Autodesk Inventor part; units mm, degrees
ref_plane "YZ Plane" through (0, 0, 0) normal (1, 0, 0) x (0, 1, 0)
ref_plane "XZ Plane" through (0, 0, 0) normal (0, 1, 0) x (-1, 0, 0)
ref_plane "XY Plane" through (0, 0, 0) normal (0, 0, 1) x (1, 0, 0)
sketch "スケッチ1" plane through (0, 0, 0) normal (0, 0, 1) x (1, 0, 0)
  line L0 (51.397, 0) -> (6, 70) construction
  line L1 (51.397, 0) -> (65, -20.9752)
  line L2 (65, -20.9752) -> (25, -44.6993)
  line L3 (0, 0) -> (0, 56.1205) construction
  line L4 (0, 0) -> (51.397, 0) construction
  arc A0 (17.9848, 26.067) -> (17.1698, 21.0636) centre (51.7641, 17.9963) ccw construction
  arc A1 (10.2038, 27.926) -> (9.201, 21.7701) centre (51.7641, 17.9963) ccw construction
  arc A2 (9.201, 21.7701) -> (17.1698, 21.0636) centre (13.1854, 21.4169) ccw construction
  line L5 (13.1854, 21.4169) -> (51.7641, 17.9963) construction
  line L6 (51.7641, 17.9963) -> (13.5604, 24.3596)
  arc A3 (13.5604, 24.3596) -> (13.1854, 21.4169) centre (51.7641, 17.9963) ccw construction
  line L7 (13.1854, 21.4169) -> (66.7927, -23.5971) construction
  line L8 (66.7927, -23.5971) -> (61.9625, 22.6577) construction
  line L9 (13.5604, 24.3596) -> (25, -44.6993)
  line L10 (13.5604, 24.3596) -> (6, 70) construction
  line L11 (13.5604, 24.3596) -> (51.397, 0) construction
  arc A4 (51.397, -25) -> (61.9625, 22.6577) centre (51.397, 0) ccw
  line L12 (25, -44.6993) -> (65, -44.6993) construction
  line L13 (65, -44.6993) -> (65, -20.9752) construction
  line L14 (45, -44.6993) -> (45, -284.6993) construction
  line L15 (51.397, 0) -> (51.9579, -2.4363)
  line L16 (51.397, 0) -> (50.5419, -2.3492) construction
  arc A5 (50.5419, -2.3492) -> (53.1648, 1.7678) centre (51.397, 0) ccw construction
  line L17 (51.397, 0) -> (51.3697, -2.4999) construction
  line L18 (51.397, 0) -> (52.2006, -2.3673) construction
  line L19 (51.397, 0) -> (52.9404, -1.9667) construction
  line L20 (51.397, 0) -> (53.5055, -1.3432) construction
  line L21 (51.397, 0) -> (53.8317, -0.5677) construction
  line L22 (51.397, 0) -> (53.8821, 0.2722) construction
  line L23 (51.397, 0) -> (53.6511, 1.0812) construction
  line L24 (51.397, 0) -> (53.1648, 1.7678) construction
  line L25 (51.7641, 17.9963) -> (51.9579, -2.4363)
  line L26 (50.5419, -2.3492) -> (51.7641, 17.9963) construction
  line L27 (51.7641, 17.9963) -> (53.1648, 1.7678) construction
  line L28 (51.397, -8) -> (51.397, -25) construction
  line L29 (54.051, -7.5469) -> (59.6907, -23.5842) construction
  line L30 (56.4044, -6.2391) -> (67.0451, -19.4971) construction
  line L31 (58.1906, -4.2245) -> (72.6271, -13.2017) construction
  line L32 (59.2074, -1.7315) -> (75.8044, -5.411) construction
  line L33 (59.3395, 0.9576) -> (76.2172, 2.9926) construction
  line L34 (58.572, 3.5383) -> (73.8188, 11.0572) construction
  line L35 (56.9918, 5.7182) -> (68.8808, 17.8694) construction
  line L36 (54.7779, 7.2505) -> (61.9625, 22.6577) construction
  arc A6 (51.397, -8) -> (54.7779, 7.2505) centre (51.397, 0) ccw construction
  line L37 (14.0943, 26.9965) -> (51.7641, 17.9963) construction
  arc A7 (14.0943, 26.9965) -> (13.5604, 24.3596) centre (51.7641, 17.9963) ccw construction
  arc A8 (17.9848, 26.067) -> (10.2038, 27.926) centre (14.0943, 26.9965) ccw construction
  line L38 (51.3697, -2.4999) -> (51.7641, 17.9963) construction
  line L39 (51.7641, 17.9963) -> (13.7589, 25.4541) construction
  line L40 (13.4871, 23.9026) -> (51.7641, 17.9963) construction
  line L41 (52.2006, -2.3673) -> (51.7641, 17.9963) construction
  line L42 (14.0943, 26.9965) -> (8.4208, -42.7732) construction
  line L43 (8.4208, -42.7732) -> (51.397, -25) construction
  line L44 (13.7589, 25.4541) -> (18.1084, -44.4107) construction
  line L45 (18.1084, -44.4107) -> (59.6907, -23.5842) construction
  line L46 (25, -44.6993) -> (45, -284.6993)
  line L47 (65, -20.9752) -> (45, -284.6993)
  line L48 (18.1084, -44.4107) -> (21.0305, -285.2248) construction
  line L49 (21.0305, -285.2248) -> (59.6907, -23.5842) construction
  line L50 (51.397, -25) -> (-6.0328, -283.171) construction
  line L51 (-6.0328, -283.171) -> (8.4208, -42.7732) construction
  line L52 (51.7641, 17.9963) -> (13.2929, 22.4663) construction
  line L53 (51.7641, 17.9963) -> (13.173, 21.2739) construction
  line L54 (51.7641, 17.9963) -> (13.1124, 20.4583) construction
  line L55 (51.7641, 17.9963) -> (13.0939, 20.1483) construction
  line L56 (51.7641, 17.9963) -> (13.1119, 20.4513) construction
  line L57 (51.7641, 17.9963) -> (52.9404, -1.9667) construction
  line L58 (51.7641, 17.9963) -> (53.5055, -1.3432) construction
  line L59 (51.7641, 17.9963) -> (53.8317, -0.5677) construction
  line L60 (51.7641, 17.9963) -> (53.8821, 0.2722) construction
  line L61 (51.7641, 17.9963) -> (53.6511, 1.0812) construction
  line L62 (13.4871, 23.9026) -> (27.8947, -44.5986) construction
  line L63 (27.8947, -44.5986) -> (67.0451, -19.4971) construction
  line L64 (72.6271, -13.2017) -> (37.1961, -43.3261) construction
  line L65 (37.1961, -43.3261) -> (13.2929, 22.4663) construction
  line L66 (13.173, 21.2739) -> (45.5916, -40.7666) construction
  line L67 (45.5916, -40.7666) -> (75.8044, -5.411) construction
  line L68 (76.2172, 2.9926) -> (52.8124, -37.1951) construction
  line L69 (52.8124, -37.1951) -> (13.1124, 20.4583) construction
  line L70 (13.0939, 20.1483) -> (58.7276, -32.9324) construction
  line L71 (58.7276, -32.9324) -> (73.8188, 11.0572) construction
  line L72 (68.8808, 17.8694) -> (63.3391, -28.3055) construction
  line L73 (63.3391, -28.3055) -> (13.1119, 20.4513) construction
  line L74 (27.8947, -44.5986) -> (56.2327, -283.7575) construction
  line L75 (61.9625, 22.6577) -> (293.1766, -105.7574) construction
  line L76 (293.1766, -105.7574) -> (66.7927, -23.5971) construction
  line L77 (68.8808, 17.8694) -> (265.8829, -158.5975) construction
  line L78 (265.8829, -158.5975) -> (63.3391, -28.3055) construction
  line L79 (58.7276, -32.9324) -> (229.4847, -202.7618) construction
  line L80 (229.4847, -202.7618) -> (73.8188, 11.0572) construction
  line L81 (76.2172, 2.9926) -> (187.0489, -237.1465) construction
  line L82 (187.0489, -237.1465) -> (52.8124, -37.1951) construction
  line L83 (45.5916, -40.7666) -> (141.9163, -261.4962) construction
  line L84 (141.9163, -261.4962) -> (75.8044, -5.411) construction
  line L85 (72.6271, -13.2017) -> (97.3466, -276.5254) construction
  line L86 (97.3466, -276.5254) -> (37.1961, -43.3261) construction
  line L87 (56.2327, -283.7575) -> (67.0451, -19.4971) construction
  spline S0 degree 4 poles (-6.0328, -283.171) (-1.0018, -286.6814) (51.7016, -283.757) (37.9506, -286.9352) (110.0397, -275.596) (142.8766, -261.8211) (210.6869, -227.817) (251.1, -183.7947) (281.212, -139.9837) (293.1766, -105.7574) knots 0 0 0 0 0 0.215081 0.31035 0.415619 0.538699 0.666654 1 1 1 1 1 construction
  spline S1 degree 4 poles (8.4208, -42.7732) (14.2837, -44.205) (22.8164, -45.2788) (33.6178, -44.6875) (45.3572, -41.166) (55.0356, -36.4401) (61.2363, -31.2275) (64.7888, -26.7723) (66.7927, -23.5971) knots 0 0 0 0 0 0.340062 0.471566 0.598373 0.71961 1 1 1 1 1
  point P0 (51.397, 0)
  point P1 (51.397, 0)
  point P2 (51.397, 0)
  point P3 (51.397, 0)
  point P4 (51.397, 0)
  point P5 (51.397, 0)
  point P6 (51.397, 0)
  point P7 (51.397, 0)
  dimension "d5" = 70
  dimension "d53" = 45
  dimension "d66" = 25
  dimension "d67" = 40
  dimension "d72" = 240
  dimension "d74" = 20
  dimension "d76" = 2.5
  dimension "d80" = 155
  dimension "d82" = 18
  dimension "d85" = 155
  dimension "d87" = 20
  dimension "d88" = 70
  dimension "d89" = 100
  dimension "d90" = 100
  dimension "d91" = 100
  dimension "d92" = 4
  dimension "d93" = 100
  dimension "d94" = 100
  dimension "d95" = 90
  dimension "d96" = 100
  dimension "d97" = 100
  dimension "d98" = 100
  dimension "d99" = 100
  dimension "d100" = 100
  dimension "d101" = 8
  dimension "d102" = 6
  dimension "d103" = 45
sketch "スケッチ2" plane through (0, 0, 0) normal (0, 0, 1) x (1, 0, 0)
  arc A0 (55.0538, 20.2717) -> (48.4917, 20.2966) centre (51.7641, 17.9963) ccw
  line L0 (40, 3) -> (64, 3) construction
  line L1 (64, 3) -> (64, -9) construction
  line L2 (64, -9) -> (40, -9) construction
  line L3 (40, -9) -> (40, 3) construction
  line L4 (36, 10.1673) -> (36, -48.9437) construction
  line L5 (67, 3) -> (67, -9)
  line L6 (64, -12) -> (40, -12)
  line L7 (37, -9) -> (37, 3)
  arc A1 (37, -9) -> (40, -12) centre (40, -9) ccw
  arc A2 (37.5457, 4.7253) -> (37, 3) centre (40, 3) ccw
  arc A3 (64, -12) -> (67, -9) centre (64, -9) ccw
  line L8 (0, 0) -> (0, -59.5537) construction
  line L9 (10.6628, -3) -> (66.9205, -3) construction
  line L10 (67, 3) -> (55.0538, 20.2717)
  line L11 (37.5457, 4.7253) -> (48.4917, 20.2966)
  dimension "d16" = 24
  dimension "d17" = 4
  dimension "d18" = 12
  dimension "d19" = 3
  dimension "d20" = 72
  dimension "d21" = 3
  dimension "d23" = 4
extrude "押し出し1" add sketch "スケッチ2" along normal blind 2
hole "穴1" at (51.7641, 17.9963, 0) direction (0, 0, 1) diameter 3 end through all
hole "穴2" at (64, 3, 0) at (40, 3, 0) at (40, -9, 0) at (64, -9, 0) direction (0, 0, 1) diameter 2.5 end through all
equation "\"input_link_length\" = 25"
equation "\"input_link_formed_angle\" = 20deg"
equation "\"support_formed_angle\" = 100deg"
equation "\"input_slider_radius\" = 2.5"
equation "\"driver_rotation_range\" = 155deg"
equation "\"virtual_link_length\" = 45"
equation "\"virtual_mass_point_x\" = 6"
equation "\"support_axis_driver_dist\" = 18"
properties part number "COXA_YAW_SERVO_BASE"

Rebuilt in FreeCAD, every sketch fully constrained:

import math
import FreeCAD as App
import Part
import Sketcher

V = App.Vector
Q = App.Units.Quantity

doc = App.newDocument("Part")
params = doc.addObject("Spreadsheet::Sheet", "Params")
for row, (alias, value) in enumerate([
    ("sketch1_radius", "4 mm"),
    ("sketch1_radius2", "3 mm"),
    ("sketch1_width", "24 mm"),
    ("sketch1_height", "12 mm"),
    ("pad1_length", "2 mm"),
    ("sketch2_diameter", "3 mm"),
    ("hole_diameter", "3 mm"),
    ("sketch3_diameter", "2.5 mm"),
    ("hole2_diameter", "2.5 mm"),
], start=1):
    params.set(f"A{row}", alias)
    params.set(f"B{row}", "=" + value)
    params.setAlias(f"B{row}", alias)

body = doc.addObject("PartDesign::Body", "Body")

# Sketch on XY plane
sketch1 = body.newObject("Sketcher::SketchObject", "Sketch")
sketch1.AttachmentSupport = (doc.getObject("XY_Plane"), [""])
sketch1.MapMode = "FlatFace"
sketch1.addGeometry([
    Part.LineSegment(V(67, 3, 0), V(55.0538, 20.2717, 0)),  # 0
    Part.ArcOfCircle(Part.Circle(V(51.7641, 17.9963, 0), V(0, 0, 1), 3.999946), math.radians(34.670603), math.radians(144.895092)),  # 1
    Part.LineSegment(V(48.4917, 20.2966, 0), V(37.5457, 4.7253, 0)),  # 2
    Part.ArcOfCircle(Part.Circle(V(40, 3, 0), V(0, 0, 1), 3.000041), math.radians(144.893921), math.radians(180)),  # 3
    Part.LineSegment(V(37, 3, 0), V(37, -9, 0)),  # 4
    Part.ArcOfCircle(Part.Circle(V(40, -9, 0), V(0, 0, 1), 3), math.radians(180), math.radians(270)),  # 5
    Part.LineSegment(V(40, -12, 0), V(64, -12, 0)),  # 6
    Part.ArcOfCircle(Part.Circle(V(64, -9, 0), V(0, 0, 1), 3), math.radians(-90), math.radians(0)),  # 7
    Part.LineSegment(V(67, -9, 0), V(67, 3, 0)),  # 8
], False)
sketch1.addConstraint([
    Sketcher.Constraint("Tangent", 0, 2, 1, 1),
    Sketcher.Constraint("Tangent", 1, 2, 2, 1),
    Sketcher.Constraint("Tangent", 2, 2, 3, 1),
    Sketcher.Constraint("Tangent", 3, 2, 4, 1),
    Sketcher.Constraint("Tangent", 4, 2, 5, 1),
    Sketcher.Constraint("Tangent", 5, 2, 6, 1),
    Sketcher.Constraint("Tangent", 6, 2, 7, 1),
    Sketcher.Constraint("Tangent", 7, 2, 8, 1),
    Sketcher.Constraint("Coincident", 8, 2, 0, 1),
    Sketcher.Constraint("Vertical", 4),
    Sketcher.Constraint("Horizontal", 6),
    Sketcher.Constraint("Vertical", 8),
    Sketcher.Constraint("Equal", 3, 5),
    Sketcher.Constraint("Equal", 5, 7),
    Sketcher.Constraint("Horizontal", 3, 2, 8, 2),
    Sketcher.Constraint("Radius", 1, 4.0),
    Sketcher.Constraint("Radius", 3, 3.0),
    Sketcher.Constraint("DistanceX", 6, 1, 6, 2, 24.0),
    Sketcher.Constraint("DistanceY", 4, 2, 4, 1, 12.0),
    Sketcher.Constraint("DistanceY", -1, 1, 3, 3, 3.0),
    Sketcher.Constraint("DistanceX", -1, 1, 3, 3, 40.0),
    Sketcher.Constraint("Angle", 0, Q("124.6702 deg")),
    Sketcher.Constraint("DistanceX", -1, 1, 1, 3, 51.764),
])
sketch1.setExpression("Constraints[15]", "Params.sketch1_radius")
sketch1.setExpression("Constraints[16]", "Params.sketch1_radius2")
sketch1.setExpression("Constraints[17]", "Params.sketch1_width")
sketch1.setExpression("Constraints[18]", "Params.sketch1_height")
pad1 = body.newObject("PartDesign::Pad", "Pad")
pad1.Profile = sketch1
pad1.setExpression("Length", "Params.pad1_length")

# Sketch on XY plane
sketch2 = body.newObject("Sketcher::SketchObject", "Sketch001")
sketch2.AttachmentSupport = (doc.getObject("XY_Plane"), [""])
sketch2.MapMode = "FlatFace"
sketch2.addGeometry(Part.Circle(V(51.7641, 17.9963, 0), V(0, 0, 1), 1.5), False)
sketch2.addConstraint([
    Sketcher.Constraint("Diameter", 0, 3.0),
    Sketcher.Constraint("DistanceX", -1, 1, 0, 3, 51.764),
    Sketcher.Constraint("DistanceY", -1, 1, 0, 3, 17.9963),
])
sketch2.setExpression("Constraints[0]", "Params.sketch2_diameter")
doc.recompute()
hole = body.newObject("PartDesign::Hole", "Hole")
hole.Profile = sketch2
hole.ThreadType = "None"
hole.setExpression("Diameter", "Params.hole_diameter")
hole.DepthType = "ThroughAll"
hole.Reversed = True

# Sketch on XY plane
sketch3 = body.newObject("Sketcher::SketchObject", "Sketch002")
sketch3.AttachmentSupport = (doc.getObject("XY_Plane"), [""])
sketch3.MapMode = "FlatFace"
sketch3.addGeometry([
    Part.Circle(V(64, 3, 0), V(0, 0, 1), 1.25),
    Part.Circle(V(40, 3, 0), V(0, 0, 1), 1.25),
    Part.Circle(V(40, -9, 0), V(0, 0, 1), 1.25),
    Part.Circle(V(64, -9, 0), V(0, 0, 1), 1.25),
], False)
sketch3.addConstraint([
    Sketcher.Constraint("Equal", 0, 1),
    Sketcher.Constraint("Equal", 1, 2),
    Sketcher.Constraint("Equal", 2, 3),
    Sketcher.Constraint("Horizontal", 0, 3, 1, 3),
    Sketcher.Constraint("Horizontal", 2, 3, 3, 3),
    Sketcher.Constraint("Vertical", 1, 3, 2, 3),
    Sketcher.Constraint("Vertical", 0, 3, 3, 3),
    Sketcher.Constraint("Diameter", 0, 2.5),
    Sketcher.Constraint("DistanceX", -1, 1, 0, 3, 64.0),
    Sketcher.Constraint("DistanceY", -1, 1, 0, 3, 3.0),
    Sketcher.Constraint("DistanceX", -1, 1, 1, 3, 40.0),
    Sketcher.Constraint("DistanceY", 2, 3, -1, 1, 9.0),
])
sketch3.setExpression("Constraints[7]", "Params.sketch3_diameter")
doc.recompute()
hole2 = body.newObject("PartDesign::Hole", "Hole001")
hole2.Profile = sketch3
hole2.ThreadType = "None"
hole2.setExpression("Diameter", "Params.hole2_diameter")
hole2.DepthType = "ThroughAll"
hole2.Reversed = True

doc.recompute()
